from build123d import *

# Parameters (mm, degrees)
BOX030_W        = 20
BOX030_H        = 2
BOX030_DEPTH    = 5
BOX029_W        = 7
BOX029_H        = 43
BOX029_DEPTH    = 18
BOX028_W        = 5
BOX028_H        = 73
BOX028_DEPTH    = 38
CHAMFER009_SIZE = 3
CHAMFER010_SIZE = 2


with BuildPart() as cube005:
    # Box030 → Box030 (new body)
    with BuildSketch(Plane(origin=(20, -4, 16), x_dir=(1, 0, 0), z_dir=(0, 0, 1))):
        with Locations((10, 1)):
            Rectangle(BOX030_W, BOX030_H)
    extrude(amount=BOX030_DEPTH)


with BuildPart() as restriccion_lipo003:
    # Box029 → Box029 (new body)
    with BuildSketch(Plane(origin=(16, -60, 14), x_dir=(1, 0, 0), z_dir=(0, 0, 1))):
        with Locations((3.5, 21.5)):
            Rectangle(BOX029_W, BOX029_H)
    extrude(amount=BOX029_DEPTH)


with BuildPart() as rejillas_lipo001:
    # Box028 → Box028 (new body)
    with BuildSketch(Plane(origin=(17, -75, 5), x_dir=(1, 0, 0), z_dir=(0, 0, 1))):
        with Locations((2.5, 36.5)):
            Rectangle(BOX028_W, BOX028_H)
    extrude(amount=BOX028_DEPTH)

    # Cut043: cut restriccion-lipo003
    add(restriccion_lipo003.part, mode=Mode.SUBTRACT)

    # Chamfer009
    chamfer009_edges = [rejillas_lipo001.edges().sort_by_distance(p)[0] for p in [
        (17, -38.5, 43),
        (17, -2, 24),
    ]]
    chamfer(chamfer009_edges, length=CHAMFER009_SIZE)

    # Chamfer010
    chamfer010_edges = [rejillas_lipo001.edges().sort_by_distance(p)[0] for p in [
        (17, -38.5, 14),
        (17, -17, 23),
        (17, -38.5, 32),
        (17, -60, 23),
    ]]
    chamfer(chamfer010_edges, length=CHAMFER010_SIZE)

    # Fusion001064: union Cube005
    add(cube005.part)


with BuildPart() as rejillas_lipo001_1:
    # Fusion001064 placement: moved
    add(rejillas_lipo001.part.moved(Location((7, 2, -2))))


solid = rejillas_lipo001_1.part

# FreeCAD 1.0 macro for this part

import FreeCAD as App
import Part
import Sketcher

V = App.Vector


def edges_at(feature, points):
    """Names of the edges that pass closest to the given points."""
    edges = feature.Shape.Edges
    near = lambda p: min(range(len(edges)), key=lambda i: edges[i].distToShape(Part.Vertex(*p))[0])
    return sorted({f"Edge{near(p) + 1}" for p in points})

doc = App.newDocument("Part")
body = doc.addObject("PartDesign::Body", "Body")

sketch1 = body.newObject("Sketcher::SketchObject", "Sketch")
sketch1.AttachmentSupport = (doc.getObject("XY_Plane"), [""])
sketch1.MapMode = "FlatFace"
sketch1.AttachmentOffset = App.Placement(V(0, 0, 16), App.Rotation())
sketch1.addGeometry(Part.LineSegment(V(20, -2, 0), V(20, -4, 0)), False)
sketch1.addGeometry(Part.LineSegment(V(20, -4, 0), V(40, -4, 0)), False)
sketch1.addGeometry(Part.LineSegment(V(40, -4, 0), V(40, -2, 0)), False)
sketch1.addGeometry(Part.LineSegment(V(40, -2, 0), V(20, -2, 0)), False)
sketch1.addConstraint(Sketcher.Constraint("Coincident", 0, 2, 1, 1))
sketch1.addConstraint(Sketcher.Constraint("Coincident", 1, 2, 2, 1))
sketch1.addConstraint(Sketcher.Constraint("Coincident", 2, 2, 3, 1))
sketch1.addConstraint(Sketcher.Constraint("Coincident", 3, 2, 0, 1))
sketch1.addConstraint(Sketcher.Constraint("Vertical", 0))
sketch1.addConstraint(Sketcher.Constraint("Horizontal", 1))
sketch1.addConstraint(Sketcher.Constraint("Vertical", 2))
sketch1.addConstraint(Sketcher.Constraint("Horizontal", 3))
sketch1.addConstraint(Sketcher.Constraint("DistanceX", 1, 1, 1, 2, 20.0))
sketch1.addConstraint(Sketcher.Constraint("DistanceY", 0, 2, 0, 1, 2.0))
sketch1.addConstraint(Sketcher.Constraint("DistanceX", -1, 1, 0, 2, 20.0))
sketch1.addConstraint(Sketcher.Constraint("DistanceY", 0, 2, -1, 1, 4.0))
pad1 = body.newObject("PartDesign::Pad", "Pad")
pad1.Profile = sketch1
pad1.Length = 5
body2 = doc.addObject("PartDesign::Body", "Body001")

sketch2 = body2.newObject("Sketcher::SketchObject", "Sketch001")
sketch2.AttachmentSupport = (doc.getObject("XY_Plane001"), [""])
sketch2.MapMode = "FlatFace"
sketch2.AttachmentOffset = App.Placement(V(0, 0, 14), App.Rotation())
sketch2.addGeometry(Part.LineSegment(V(16, -17, 0), V(16, -60, 0)), False)
sketch2.addGeometry(Part.LineSegment(V(16, -60, 0), V(23, -60, 0)), False)
sketch2.addGeometry(Part.LineSegment(V(23, -60, 0), V(23, -17, 0)), False)
sketch2.addGeometry(Part.LineSegment(V(23, -17, 0), V(16, -17, 0)), False)
sketch2.addConstraint(Sketcher.Constraint("Coincident", 0, 2, 1, 1))
sketch2.addConstraint(Sketcher.Constraint("Coincident", 1, 2, 2, 1))
sketch2.addConstraint(Sketcher.Constraint("Coincident", 2, 2, 3, 1))
sketch2.addConstraint(Sketcher.Constraint("Coincident", 3, 2, 0, 1))
sketch2.addConstraint(Sketcher.Constraint("Vertical", 0))
sketch2.addConstraint(Sketcher.Constraint("Horizontal", 1))
sketch2.addConstraint(Sketcher.Constraint("Vertical", 2))
sketch2.addConstraint(Sketcher.Constraint("Horizontal", 3))
sketch2.addConstraint(Sketcher.Constraint("DistanceX", 1, 1, 1, 2, 7.0))
sketch2.addConstraint(Sketcher.Constraint("DistanceY", 0, 2, 0, 1, 43.0))
sketch2.addConstraint(Sketcher.Constraint("DistanceX", -1, 1, 0, 2, 16.0))
sketch2.addConstraint(Sketcher.Constraint("DistanceY", 0, 2, -1, 1, 60.0))
pad2 = body2.newObject("PartDesign::Pad", "Pad001")
pad2.Profile = sketch2
pad2.Length = 18
body3 = doc.addObject("PartDesign::Body", "Body002")

sketch3 = body3.newObject("Sketcher::SketchObject", "Sketch002")
sketch3.AttachmentSupport = (doc.getObject("XY_Plane002"), [""])
sketch3.MapMode = "FlatFace"
sketch3.AttachmentOffset = App.Placement(V(0, 0, 5), App.Rotation())
sketch3.addGeometry(Part.LineSegment(V(17, -2, 0), V(17, -75, 0)), False)
sketch3.addGeometry(Part.LineSegment(V(17, -75, 0), V(22, -75, 0)), False)
sketch3.addGeometry(Part.LineSegment(V(22, -75, 0), V(22, -2, 0)), False)
sketch3.addGeometry(Part.LineSegment(V(22, -2, 0), V(17, -2, 0)), False)
sketch3.addConstraint(Sketcher.Constraint("Coincident", 0, 2, 1, 1))
sketch3.addConstraint(Sketcher.Constraint("Coincident", 1, 2, 2, 1))
sketch3.addConstraint(Sketcher.Constraint("Coincident", 2, 2, 3, 1))
sketch3.addConstraint(Sketcher.Constraint("Coincident", 3, 2, 0, 1))
sketch3.addConstraint(Sketcher.Constraint("Vertical", 0))
sketch3.addConstraint(Sketcher.Constraint("Horizontal", 1))
sketch3.addConstraint(Sketcher.Constraint("Vertical", 2))
sketch3.addConstraint(Sketcher.Constraint("Horizontal", 3))
sketch3.addConstraint(Sketcher.Constraint("DistanceX", 1, 1, 1, 2, 5.0))
sketch3.addConstraint(Sketcher.Constraint("DistanceY", 0, 2, 0, 1, 73.0))
sketch3.addConstraint(Sketcher.Constraint("DistanceX", -1, 1, 0, 2, 17.0))
sketch3.addConstraint(Sketcher.Constraint("DistanceY", 0, 2, -1, 1, 75.0))
pad3 = body3.newObject("PartDesign::Pad", "Pad002")
pad3.Profile = sketch3
pad3.Length = 38
doc.recompute()

boolean = body3.newObject("PartDesign::Boolean", "Boolean")
boolean.Type = "Cut"
boolean.addObjects([body2])
doc.recompute()

chamfer = body3.newObject("PartDesign::Chamfer", "Chamfer")
chamfer.Base = (boolean, edges_at(boolean, [(17, -38.5, 43), (17, -2, 24)]))
chamfer.Size = 3
doc.recompute()

chamfer2 = body3.newObject("PartDesign::Chamfer", "Chamfer001")
chamfer2.Base = (chamfer, edges_at(chamfer, [
    (17, -38.5, 14),
    (17, -17, 23),
    (17, -38.5, 32),
    (17, -60, 23),
]))
chamfer2.Size = 2
doc.recompute()

boolean2 = body3.newObject("PartDesign::Boolean", "Boolean001")
boolean2.Type = "Fuse"
boolean2.addObjects([body])
body4 = doc.addObject("PartDesign::Body", "Body003")
doc.recompute()

body3.Placement = App.Placement(V(7, 2, -2), App.Rotation(V(0, 0, 1), 0))
boolean3 = body4.newObject("PartDesign::Boolean", "Boolean002")
boolean3.Type = "Fuse"
boolean3.addObjects([body3])

doc.recompute()
